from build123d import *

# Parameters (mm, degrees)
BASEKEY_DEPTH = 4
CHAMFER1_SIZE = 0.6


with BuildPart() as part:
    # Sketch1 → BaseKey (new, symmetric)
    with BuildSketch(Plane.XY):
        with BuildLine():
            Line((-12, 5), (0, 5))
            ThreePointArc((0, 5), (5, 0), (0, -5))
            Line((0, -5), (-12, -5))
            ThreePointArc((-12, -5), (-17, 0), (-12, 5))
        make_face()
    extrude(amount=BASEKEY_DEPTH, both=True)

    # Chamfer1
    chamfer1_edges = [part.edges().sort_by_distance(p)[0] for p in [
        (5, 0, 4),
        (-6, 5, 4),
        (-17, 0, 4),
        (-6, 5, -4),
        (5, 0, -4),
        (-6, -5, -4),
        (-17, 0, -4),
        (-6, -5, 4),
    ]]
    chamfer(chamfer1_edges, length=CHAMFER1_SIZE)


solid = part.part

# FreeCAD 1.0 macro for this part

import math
import FreeCAD as App
import Part
import Sketcher


def edges_at(feature, points):
    """Names of the edges that pass closest to the given points."""
    edges = feature.Shape.Edges
    near = lambda p: min(range(len(edges)), key=lambda i: edges[i].distToShape(Part.Vertex(*p))[0])
    return sorted({f"Edge{near(p) + 1}" for p in points})

doc = App.newDocument("Part")
params = doc.addObject("Spreadsheet::Sheet", "Params")
for row, (alias, value) in enumerate([
    ("sketch1_radius", "5 mm"),
    ("sketch1_width", "12 mm"),
    ("pad1_length", "8 mm"),
    ("chamfer_size", "0.6 mm"),
], start=1):
    params.set(f"A{row}", alias)
    params.set(f"B{row}", "=" + value)
    params.setAlias(f"B{row}", alias)

body = doc.addObject("PartDesign::Body", "Body")

# Sketch on XY plane
sketch1 = body.newObject("Sketcher::SketchObject", "Sketch")
sketch1.AttachmentSupport = (doc.getObject("XY_Plane"), [""])
sketch1.MapMode = "FlatFace"
sketch1.addGeometry(Part.LineSegment(App.Vector(0, 5, 0), App.Vector(-12, 5, 0)), False)
sketch1.addGeometry(Part.ArcOfCircle(Part.Circle(App.Vector(-12, 0, 0), App.Vector(0, 0, 1), 5), math.radians(90), math.radians(270)), False)
sketch1.addGeometry(Part.LineSegment(App.Vector(-12, -5, 0), App.Vector(0, -5, 0)), False)
sketch1.addGeometry(Part.ArcOfCircle(Part.Circle(App.Vector(0, 0, 0), App.Vector(0, 0, 1), 5), math.radians(-90), math.radians(90)), False)
sketch1.addConstraint(Sketcher.Constraint("Tangent", 0, 2, 1, 1))
sketch1.addConstraint(Sketcher.Constraint("Tangent", 1, 2, 2, 1))
sketch1.addConstraint(Sketcher.Constraint("Tangent", 2, 2, 3, 1))
sketch1.addConstraint(Sketcher.Constraint("Tangent", 3, 2, 0, 1))
sketch1.addConstraint(Sketcher.Constraint("Horizontal", 0))
sketch1.addConstraint(Sketcher.Constraint("Horizontal", 2))
sketch1.addConstraint(Sketcher.Constraint("Coincident", 3, 3, -1, 1))
sketch1.addConstraint(Sketcher.Constraint("Radius", 1, 5.0))
sketch1.addConstraint(Sketcher.Constraint("DistanceX", 0, 2, 0, 1, 12.0))
sketch1.setExpression("Constraints[7]", "Params.sketch1_radius")
sketch1.setExpression("Constraints[8]", "Params.sketch1_width")
pad1 = body.newObject("PartDesign::Pad", "Pad")
pad1.Profile = sketch1
pad1.setExpression("Length", "Params.pad1_length")
pad1.Midplane = True
doc.recompute()

chamfer = body.newObject("PartDesign::Chamfer", "Chamfer")
chamfer.Base = (pad1, edges_at(pad1, [
    (5, 0, 4),
    (-6, 5, 4),
    (-17, 0, 4),
    (-6, 5, -4),
    (5, 0, -4),
    (-6, -5, -4),
    (-17, 0, -4),
    (-6, -5, 4),
]))
chamfer.setExpression("Size", "Params.chamfer_size")

doc.recompute()
